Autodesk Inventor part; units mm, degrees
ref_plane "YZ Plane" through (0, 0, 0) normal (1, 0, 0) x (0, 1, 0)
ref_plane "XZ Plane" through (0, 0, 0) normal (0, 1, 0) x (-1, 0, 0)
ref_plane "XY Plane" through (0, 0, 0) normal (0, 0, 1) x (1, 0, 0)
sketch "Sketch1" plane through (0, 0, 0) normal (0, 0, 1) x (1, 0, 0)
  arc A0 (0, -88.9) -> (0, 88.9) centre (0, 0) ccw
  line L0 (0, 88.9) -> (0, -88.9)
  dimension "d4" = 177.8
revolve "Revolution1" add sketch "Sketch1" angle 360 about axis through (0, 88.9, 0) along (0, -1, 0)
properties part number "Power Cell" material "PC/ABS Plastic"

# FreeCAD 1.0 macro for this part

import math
import FreeCAD as App
import Part
import Sketcher
Q = App.Units.Quantity

doc = App.newDocument("Part")
body = doc.addObject("PartDesign::Body", "Body")

# Sketch on XY plane
sketch1 = body.newObject("Sketcher::SketchObject", "Sketch")
sketch1.AttachmentSupport = (doc.getObject("XY_Plane"), [""])
sketch1.MapMode = "FlatFace"
sketch1.addGeometry([
    Part.LineSegment(App.Vector(0, 88.9, 0), App.Vector(0, -88.9, 0)),
    Part.ArcOfCircle(Part.Circle(App.Vector(0, 0, 0), App.Vector(0, 0, 1), 88.9), math.radians(-90), math.radians(90)),
], False)
sketch1.addConstraint([
    Sketcher.Constraint("Coincident", 0, 1, 1, 2),
    Sketcher.Constraint("Coincident", 1, 1, 0, 2),
    Sketcher.Constraint("Vertical", 0),
    Sketcher.Constraint("Coincident", 1, 3, -1, 1),
    Sketcher.Constraint("PointOnObject", 0, 1, -2),
    Sketcher.Constraint("Radius", 1, Q("3.5 in")),
])
revolution = body.newObject("PartDesign::Revolution", "Revolution")
revolution.Profile = sketch1
revolution.ReferenceAxis = (sketch1, ["V_Axis"])
revolution.Angle = 360

doc.recompute()
